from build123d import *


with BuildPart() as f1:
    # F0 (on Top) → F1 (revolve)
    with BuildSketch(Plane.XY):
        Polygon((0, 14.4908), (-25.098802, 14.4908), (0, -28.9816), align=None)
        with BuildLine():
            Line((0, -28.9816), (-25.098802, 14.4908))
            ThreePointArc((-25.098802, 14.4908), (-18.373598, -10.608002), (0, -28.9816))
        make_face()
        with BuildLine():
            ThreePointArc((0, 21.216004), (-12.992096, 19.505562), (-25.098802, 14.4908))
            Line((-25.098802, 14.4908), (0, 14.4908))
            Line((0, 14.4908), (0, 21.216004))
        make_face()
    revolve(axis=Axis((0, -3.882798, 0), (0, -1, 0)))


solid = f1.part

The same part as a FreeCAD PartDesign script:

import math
import FreeCAD as App
import Part
import Sketcher
Q = App.Units.Quantity

doc = App.newDocument("Part")
body = doc.addObject("PartDesign::Body", "Body")

# Sketch on XY plane
sketch1 = body.newObject("Sketcher::SketchObject", "Sketch")
sketch1.AttachmentSupport = (doc.getObject("XY_Plane"), [""])
sketch1.MapMode = "FlatFace"
sketch1.addGeometry(Part.ArcOfCircle(Part.Circle(App.Vector(25, 14, 0), App.Vector(0, 0, 1), 50), math.radians(-180), math.radians(-120)), False)
sketch1.addGeometry(Part.LineSegment(App.Vector(0, -29, 0), App.Vector(0, 21, 0)), False)
sketch1.addGeometry(Part.ArcOfCircle(Part.Circle(App.Vector(0, -29, 0), App.Vector(0, 0, 1), 50), math.radians(90), math.radians(120)), False)
sketch1.addConstraint(Sketcher.Constraint("Coincident", 0, 2, 1, 1))
sketch1.addConstraint(Sketcher.Constraint("Coincident", 1, 2, 2, 1))
sketch1.addConstraint(Sketcher.Constraint("Coincident", 2, 2, 0, 1))
sketch1.addConstraint(Sketcher.Constraint("Vertical", 1))
sketch1.addConstraint(Sketcher.Constraint("Coincident", 0, 2, 2, 3))
sketch1.addConstraint(Sketcher.Constraint("Equal", 0, 2))
sketch1.addConstraint(Sketcher.Constraint("PointOnObject", 2, 3, -2))
sketch1.addConstraint(Sketcher.Constraint("Horizontal", 0, 3, 2, 2))
sketch1.addConstraint(Sketcher.Constraint("Radius", 0, Q("50.197605 mm")))
sketch1.addConstraint(Sketcher.Constraint("DistanceY", -1, 1, 0, 3, Q("14.490801 mm")))
revolution = body.newObject("PartDesign::Revolution", "Revolution")
revolution.Profile = sketch1
revolution.ReferenceAxis = (sketch1, ["V_Axis"])
revolution.Angle = 360

doc.recompute()
